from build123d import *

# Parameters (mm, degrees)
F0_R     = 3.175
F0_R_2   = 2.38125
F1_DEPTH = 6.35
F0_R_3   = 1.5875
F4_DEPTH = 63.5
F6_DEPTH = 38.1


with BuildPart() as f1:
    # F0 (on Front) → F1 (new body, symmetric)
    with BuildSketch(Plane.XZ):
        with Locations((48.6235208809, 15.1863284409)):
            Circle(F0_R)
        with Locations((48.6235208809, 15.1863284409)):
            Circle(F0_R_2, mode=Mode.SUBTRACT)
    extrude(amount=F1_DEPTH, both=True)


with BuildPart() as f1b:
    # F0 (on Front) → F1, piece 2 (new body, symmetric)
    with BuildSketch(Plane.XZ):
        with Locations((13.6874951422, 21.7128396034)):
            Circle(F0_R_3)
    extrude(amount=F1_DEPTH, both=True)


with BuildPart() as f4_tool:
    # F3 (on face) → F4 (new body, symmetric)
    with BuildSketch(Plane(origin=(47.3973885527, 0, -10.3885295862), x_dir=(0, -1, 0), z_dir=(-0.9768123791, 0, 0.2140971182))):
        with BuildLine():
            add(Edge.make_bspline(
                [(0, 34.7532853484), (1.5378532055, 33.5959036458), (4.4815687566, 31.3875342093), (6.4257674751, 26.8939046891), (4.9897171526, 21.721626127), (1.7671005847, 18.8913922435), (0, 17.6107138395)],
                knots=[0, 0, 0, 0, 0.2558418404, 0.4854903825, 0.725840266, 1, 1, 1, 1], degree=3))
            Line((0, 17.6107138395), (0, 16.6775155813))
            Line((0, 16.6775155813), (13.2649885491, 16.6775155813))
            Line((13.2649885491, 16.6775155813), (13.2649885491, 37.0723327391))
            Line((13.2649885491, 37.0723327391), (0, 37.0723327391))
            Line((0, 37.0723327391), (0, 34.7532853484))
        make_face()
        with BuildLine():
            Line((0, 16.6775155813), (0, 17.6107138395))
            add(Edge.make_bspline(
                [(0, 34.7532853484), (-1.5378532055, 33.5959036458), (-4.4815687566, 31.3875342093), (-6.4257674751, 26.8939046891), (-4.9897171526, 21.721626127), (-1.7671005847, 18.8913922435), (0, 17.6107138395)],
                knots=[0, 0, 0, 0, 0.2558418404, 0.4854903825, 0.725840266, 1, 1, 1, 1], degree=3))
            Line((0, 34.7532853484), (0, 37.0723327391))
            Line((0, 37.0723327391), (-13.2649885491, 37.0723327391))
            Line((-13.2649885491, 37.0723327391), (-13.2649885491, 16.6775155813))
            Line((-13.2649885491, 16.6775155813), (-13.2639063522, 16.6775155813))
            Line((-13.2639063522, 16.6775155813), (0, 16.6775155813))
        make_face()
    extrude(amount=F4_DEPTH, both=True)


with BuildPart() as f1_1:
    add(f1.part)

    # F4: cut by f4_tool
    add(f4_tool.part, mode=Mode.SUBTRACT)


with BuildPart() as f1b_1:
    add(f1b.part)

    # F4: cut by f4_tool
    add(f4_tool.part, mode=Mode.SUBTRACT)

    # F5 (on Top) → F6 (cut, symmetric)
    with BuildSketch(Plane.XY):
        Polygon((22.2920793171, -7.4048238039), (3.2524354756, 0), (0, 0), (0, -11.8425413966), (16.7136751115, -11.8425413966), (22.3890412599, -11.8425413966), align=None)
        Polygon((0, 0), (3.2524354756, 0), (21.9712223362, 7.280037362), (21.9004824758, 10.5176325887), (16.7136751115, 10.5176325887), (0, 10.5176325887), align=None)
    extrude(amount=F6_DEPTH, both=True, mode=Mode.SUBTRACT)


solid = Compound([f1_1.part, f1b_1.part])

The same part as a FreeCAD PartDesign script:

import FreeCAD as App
import Part
import Sketcher

V = App.Vector
Q = App.Units.Quantity

doc = App.newDocument("Part")
body = doc.addObject("PartDesign::Body", "Body")

sketch1 = body.newObject("Sketcher::SketchObject", "Sketch")
sketch1.AttachmentSupport = (doc.getObject("XZ_Plane"), [""])
sketch1.MapMode = "FlatFace"
sketch1.addGeometry([
    Part.Circle(V(48.6, 15.2, 0), V(0, 0, 1), 3.2),
    Part.Circle(V(48.6, 15.2, 0), V(0, 0, 1), 2.4),
], False)
sketch1.addConstraint([
    Sketcher.Constraint("Coincident", 1, 3, 0, 3),
    Sketcher.Constraint("Diameter", 0, Q("0.25 in")),
    Sketcher.Constraint("Diameter", 1, Q("0.1875 in")),
    Sketcher.Constraint("DistanceX", -1, 1, 0, 3, Q("48.623521 mm")),
    Sketcher.Constraint("DistanceY", -1, 1, 0, 3, Q("15.186328 mm")),
])
pad1 = body.newObject("PartDesign::Pad", "Pad")
pad1.Profile = sketch1
pad1.Length = Q("0.5 in")
pad1.Midplane = True
body2 = doc.addObject("PartDesign::Body", "Body001")

sketch2 = body2.newObject("Sketcher::SketchObject", "Sketch001")
sketch2.AttachmentSupport = (doc.getObject("XZ_Plane001"), [""])
sketch2.MapMode = "FlatFace"
sketch2.addGeometry(Part.Circle(V(13.7, 21.7, 0), V(0, 0, 1), 1.6), False)
sketch2.addConstraint([
    Sketcher.Constraint("Diameter", 0, Q("0.125 in")),
    Sketcher.Constraint("DistanceY", -1, 1, 0, 3, Q("21.71284 mm")),
    Sketcher.Constraint("DistanceX", -1, 1, 0, 3, Q("13.687495 mm")),
])
pad2 = body2.newObject("PartDesign::Pad", "Pad001")
pad2.Profile = sketch2
pad2.Length = Q("0.5 in")
pad2.Midplane = True
body3 = doc.addObject("PartDesign::Body", "Body002")

sketch3 = body3.newObject("Sketcher::SketchObject", "Sketch002")
sketch3.Placement = App.Placement(V(47.397389, 0, -10.38853), App.Rotation(V(0, -1, 0), V(0.214097118, 0, 0.976812379), V(-0.976812379, 0, 0.214097118), "ZXY"))
sketch3.addGeometry([
    Part.LineSegment(V(13.264989, 16.677516, 0), V(13.264989, 37.072333, 0)),
    Part.LineSegment(V(13.264989, 37.072333, 0), V(-13.264989, 37.072333, 0)),
    Part.LineSegment(V(-13.264989, 37.072333, 0), V(-13.264989, 16.677516, 0)),
    Part.LineSegment(V(-13.264989, 16.677516, 0), V(13.264989, 16.677516, 0)),
    Part.BSplineCurve([V(0, 34.753285, 0), V(1.537853, 33.595904, 0), V(4.481569, 31.387534, 0), V(6.425767, 26.893905, 0), V(4.989717, 21.721626, 0), V(1.767101, 18.891392, 0), V(0, 17.610714, 0)], [4, 1, 1, 1, 4], [0, 0.25584184, 0.485490382, 0.725840266, 1], False, 3, [1, 1, 1, 1, 1, 1, 1], False),
    Part.BSplineCurve([V(0, 34.753285, 0), V(-1.537853, 33.595904, 0), V(-4.481569, 31.387534, 0), V(-6.425767, 26.893905, 0), V(-4.989717, 21.721626, 0), V(-1.767101, 18.891392, 0), V(0, 17.610714, 0)], [4, 1, 1, 1, 4], [0, 0.25584184, 0.485490382, 0.725840266, 1], False, 3, [1, 1, 1, 1, 1, 1, 1], False),
], False)
sketch3.addConstraint([
    Sketcher.Constraint("Block", 4),
    Sketcher.Constraint("Block", 5),
    Sketcher.Constraint("Coincident", 0, 2, 1, 1),
    Sketcher.Constraint("Coincident", 1, 2, 2, 1),
    Sketcher.Constraint("Coincident", 2, 2, 3, 1),
    Sketcher.Constraint("Coincident", 3, 2, 0, 1),
    Sketcher.Constraint("Vertical", 0),
    Sketcher.Constraint("Horizontal", 1),
    Sketcher.Constraint("Vertical", 2),
    Sketcher.Constraint("Horizontal", 3),
    Sketcher.Constraint("DistanceX", 1, 2, 1, 1, Q("26.529977 mm")),
    Sketcher.Constraint("DistanceY", 0, 1, 0, 2, Q("20.394817 mm")),
    Sketcher.Constraint("DistanceX", -1, 1, 0, 2, Q("13.264989 mm")),
    Sketcher.Constraint("DistanceY", -1, 1, 0, 2, Q("37.072333 mm")),
])
pad3 = body3.newObject("PartDesign::Pad", "Pad002")
pad3.Profile = sketch3
pad3.Length = Q("5 in")
pad3.Midplane = True
doc.recompute()

body4 = doc.addObject("PartDesign::Body", "Body003")
body4.BaseFeature = body3
boolean = body.newObject("PartDesign::Boolean", "Boolean")
boolean.Type = "Cut"
boolean.addObjects([body4])
doc.recompute()

boolean2 = body2.newObject("PartDesign::Boolean", "Boolean001")
boolean2.Type = "Cut"
boolean2.addObjects([body3])

sketch4 = body2.newObject("Sketcher::SketchObject", "Sketch003")
sketch4.AttachmentSupport = (doc.getObject("XY_Plane001"), [""])
sketch4.MapMode = "FlatFace"
sketch4.addGeometry([
    Part.LineSegment(V(22.3, -7.4, 0), V(3.3, 0, 0)),
    Part.LineSegment(V(3.3, 0, 0), V(22, 7.3, 0)),
    Part.LineSegment(V(22, 7.3, 0), V(21.9, 10.5, 0)),
    Part.LineSegment(V(21.9, 10.5, 0), V(0, 10.5, 0)),
    Part.LineSegment(V(0, 10.5, 0), V(0, -11.8, 0)),
    Part.LineSegment(V(0, -11.8, 0), V(22.4, -11.8, 0)),
    Part.LineSegment(V(22.4, -11.8, 0), V(22.3, -7.4, 0)),
], False)
sketch4.addConstraint([
    Sketcher.Constraint("Coincident", 0, 2, 1, 1),
    Sketcher.Constraint("Coincident", 1, 2, 2, 1),
    Sketcher.Constraint("Coincident", 2, 2, 3, 1),
    Sketcher.Constraint("Coincident", 3, 2, 4, 1),
    Sketcher.Constraint("Coincident", 4, 2, 5, 1),
    Sketcher.Constraint("Coincident", 5, 2, 6, 1),
    Sketcher.Constraint("Coincident", 6, 2, 0, 1),
    Sketcher.Constraint("Horizontal", 3),
    Sketcher.Constraint("Vertical", 4),
    Sketcher.Constraint("Horizontal", 5),
    Sketcher.Constraint("PointOnObject", 0, 2, -1),
    Sketcher.Constraint("PointOnObject", 3, 2, -2),
    Sketcher.Constraint("Parallel", 2, 6),
    Sketcher.Constraint("DistanceX", 5, 1, 5, 2, Q("22.389041 mm")),
    Sketcher.Constraint("Distance", 1, Q("20.084619 mm")),
    Sketcher.Constraint("DistanceX", 3, 2, 3, 1, Q("21.900482 mm")),
    Sketcher.Constraint("DistanceY", 4, 2, 4, 1, Q("22.360174 mm")),
    Sketcher.Constraint("DistanceY", 4, 2, -1, 1, Q("11.842541 mm")),
    Sketcher.Constraint("DistanceX", -1, 1, 6, 2, Q("22.292079 mm")),
    Sketcher.Constraint("DistanceX", 2, 2, 1, 2, Q("0.07074 mm")),
    Sketcher.Constraint("DistanceY", 4, 2, 1, 2, Q("19.122579 mm")),
])
pocket1 = body2.newObject("PartDesign::Pocket", "Pocket")
pocket1.Profile = sketch4
pocket1.Length = Q("3 in")
pocket1.Midplane = True

doc.recompute()
